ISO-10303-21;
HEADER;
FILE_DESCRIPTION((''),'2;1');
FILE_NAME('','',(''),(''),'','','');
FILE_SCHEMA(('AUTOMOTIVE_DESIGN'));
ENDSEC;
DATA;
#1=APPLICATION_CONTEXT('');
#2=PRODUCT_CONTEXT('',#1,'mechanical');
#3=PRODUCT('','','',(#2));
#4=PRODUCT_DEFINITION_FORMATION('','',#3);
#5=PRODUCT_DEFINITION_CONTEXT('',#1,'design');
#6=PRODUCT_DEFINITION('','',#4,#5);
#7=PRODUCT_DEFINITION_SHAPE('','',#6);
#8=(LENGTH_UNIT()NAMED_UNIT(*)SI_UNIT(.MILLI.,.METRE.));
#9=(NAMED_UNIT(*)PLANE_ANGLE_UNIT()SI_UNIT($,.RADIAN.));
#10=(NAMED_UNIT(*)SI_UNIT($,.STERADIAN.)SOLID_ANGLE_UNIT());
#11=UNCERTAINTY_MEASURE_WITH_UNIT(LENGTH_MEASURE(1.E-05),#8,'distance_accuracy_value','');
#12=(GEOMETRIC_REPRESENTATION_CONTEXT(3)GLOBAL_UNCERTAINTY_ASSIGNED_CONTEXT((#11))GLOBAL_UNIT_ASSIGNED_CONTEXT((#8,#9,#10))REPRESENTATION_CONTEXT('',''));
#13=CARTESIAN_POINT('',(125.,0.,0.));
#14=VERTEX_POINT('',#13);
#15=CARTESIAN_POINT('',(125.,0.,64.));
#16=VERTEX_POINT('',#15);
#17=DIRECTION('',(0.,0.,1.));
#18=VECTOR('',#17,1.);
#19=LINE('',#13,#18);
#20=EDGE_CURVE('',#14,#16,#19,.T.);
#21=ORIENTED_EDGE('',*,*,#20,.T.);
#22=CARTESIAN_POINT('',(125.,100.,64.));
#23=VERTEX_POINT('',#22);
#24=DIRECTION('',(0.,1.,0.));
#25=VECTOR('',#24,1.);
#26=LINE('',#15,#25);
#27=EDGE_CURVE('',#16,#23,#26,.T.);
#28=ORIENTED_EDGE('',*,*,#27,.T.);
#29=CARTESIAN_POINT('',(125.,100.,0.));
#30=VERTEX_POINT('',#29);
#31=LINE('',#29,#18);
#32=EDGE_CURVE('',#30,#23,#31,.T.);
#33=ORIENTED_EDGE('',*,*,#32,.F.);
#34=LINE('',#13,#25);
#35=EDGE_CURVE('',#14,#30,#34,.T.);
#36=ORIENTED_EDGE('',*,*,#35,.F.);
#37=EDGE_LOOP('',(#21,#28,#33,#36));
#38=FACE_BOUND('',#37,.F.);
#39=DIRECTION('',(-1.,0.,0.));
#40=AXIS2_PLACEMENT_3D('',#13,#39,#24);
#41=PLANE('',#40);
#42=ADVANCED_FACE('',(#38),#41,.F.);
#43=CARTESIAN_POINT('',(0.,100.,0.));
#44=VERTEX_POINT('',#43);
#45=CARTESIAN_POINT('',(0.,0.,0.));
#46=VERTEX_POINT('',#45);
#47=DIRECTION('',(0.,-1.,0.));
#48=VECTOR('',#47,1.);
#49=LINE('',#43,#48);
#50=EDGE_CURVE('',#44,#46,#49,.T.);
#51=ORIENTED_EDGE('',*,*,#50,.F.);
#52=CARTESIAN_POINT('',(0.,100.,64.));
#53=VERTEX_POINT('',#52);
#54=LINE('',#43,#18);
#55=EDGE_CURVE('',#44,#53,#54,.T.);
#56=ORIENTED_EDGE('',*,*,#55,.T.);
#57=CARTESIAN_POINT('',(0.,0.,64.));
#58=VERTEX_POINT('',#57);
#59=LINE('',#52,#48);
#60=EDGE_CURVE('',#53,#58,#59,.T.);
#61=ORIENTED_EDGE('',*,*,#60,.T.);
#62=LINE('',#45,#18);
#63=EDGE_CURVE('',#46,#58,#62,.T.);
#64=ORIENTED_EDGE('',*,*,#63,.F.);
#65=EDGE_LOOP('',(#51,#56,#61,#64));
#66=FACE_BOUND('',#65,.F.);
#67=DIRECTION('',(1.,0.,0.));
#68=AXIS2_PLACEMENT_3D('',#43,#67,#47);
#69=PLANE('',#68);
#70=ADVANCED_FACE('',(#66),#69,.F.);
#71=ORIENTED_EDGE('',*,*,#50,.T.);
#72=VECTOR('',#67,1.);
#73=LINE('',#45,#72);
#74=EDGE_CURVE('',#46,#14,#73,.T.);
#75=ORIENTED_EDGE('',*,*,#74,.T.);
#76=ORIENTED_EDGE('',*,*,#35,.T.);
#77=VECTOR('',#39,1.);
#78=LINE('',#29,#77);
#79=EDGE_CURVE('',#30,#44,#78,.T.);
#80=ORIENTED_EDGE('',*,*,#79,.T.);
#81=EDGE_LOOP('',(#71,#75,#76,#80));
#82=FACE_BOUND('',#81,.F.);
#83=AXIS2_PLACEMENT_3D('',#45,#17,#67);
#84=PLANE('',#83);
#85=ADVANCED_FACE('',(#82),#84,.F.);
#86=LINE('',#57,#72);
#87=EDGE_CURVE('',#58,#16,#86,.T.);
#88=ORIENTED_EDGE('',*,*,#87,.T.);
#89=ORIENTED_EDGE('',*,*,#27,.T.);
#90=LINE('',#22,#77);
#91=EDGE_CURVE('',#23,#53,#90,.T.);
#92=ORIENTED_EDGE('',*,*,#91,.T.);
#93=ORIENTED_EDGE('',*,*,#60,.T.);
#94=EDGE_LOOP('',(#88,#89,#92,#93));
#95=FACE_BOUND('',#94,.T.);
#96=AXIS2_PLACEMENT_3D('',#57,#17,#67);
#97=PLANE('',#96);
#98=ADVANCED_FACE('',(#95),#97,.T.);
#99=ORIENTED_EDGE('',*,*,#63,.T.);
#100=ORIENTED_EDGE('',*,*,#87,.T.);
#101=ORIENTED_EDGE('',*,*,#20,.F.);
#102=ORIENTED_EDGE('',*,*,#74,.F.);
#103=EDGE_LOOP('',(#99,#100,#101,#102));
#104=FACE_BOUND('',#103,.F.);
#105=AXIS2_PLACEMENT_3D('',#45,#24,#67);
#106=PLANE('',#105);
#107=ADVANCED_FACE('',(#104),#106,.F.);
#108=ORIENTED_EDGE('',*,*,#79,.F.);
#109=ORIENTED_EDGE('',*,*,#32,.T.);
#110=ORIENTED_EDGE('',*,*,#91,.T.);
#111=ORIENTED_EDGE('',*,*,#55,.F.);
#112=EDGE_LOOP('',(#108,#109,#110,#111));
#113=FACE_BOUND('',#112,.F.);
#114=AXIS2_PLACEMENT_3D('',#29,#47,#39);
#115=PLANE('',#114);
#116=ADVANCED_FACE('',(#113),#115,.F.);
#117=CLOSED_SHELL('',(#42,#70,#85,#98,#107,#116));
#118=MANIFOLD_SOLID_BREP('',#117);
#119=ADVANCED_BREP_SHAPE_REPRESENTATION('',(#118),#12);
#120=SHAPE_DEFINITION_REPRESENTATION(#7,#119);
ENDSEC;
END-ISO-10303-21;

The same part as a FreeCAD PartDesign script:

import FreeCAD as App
import Part
import Sketcher


def add_polygon(sketch, points):
    """Adds a closed chain of lines whose ends are joined by coincident constraints."""
    first, n = sketch.GeometryCount, len(points)
    for a, b in zip(points, points[1:] + points[:1]):
        sketch.addGeometry(Part.LineSegment(App.Vector(*a, 0), App.Vector(*b, 0)), False)
    for i in range(n):
        sketch.addConstraint(Sketcher.Constraint("Coincident", first + i, 2, first + (i + 1) % n, 1))

doc = App.newDocument("Part")
body = doc.addObject("PartDesign::Body", "Body")

sketch1 = body.newObject("Sketcher::SketchObject", "Sketch")
sketch1.AttachmentSupport = (doc.getObject("XY_Plane"), [""])
sketch1.MapMode = "FlatFace"
add_polygon(sketch1, [(0, 100), (0, 0), (125, 0), (125, 100)])
sketch1.addConstraint(Sketcher.Constraint("Vertical", 0))
sketch1.addConstraint(Sketcher.Constraint("Horizontal", 1))
sketch1.addConstraint(Sketcher.Constraint("Vertical", 2))
sketch1.addConstraint(Sketcher.Constraint("Horizontal", 3))
sketch1.addConstraint(Sketcher.Constraint("Coincident", 0, 2, -1, 1))
sketch1.addConstraint(Sketcher.Constraint("DistanceX", 1, 1, 1, 2, 125.0))
sketch1.addConstraint(Sketcher.Constraint("DistanceY", 0, 2, 0, 1, 100.0))
pad1 = body.newObject("PartDesign::Pad", "Pad")
pad1.Profile = sketch1
pad1.Length = 64

doc.recompute()
